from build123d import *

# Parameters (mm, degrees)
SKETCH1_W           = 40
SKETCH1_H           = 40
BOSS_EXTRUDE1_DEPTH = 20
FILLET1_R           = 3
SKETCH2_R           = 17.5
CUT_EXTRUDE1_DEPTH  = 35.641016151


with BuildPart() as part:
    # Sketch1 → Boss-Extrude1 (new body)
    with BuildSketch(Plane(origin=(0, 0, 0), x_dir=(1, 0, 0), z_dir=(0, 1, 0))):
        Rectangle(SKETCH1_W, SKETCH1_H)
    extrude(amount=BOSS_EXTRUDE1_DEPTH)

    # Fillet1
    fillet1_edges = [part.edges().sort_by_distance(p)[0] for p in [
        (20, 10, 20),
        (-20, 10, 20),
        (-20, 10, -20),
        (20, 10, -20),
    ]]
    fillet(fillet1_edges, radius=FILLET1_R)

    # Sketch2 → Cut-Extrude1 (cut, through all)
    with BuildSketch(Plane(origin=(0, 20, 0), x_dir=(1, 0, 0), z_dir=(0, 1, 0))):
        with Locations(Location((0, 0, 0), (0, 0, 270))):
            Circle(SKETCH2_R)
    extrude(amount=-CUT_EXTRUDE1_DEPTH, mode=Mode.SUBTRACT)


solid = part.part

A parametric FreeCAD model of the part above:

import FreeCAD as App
import Part
import Sketcher
Q = App.Units.Quantity


def edges_at(feature, points):
    """Names of the edges that pass closest to the given points."""
    edges = feature.Shape.Edges
    near = lambda p: min(range(len(edges)), key=lambda i: edges[i].distToShape(Part.Vertex(*p))[0])
    return sorted({f"Edge{near(p) + 1}" for p in points})


def add_polygon(sketch, points):
    """Adds a closed chain of lines whose ends are joined by coincident constraints."""
    first, n = sketch.GeometryCount, len(points)
    for a, b in zip(points, points[1:] + points[:1]):
        sketch.addGeometry(Part.LineSegment(App.Vector(*a, 0), App.Vector(*b, 0)), False)
    for i in range(n):
        sketch.addConstraint(Sketcher.Constraint("Coincident", first + i, 2, first + (i + 1) % n, 1))

doc = App.newDocument("Part")
body = doc.addObject("PartDesign::Body", "Body")

# Sketch on XZ plane
sketch1 = doc.addObject("Sketcher::SketchObject", "Sketch")
body.addObject(sketch1)
sketch1.AttachmentSupport = (doc.XZ_Plane, [""])
sketch1.MapMode = "FlatFace"
add_polygon(sketch1, [(-20, -20), (-20, 20), (20, 20), (20, -20)])  # lines 0-3
sketch1.addConstraint([
    Sketcher.Constraint("Vertical", 0),
    Sketcher.Constraint("Horizontal", 1),
    Sketcher.Constraint("Vertical", 2),
    Sketcher.Constraint("Horizontal", 3),
    Sketcher.Constraint("Symmetric", 0, 2, 2, 2, -1, 1),
    Sketcher.Constraint("Equal", 3, 0),
    Sketcher.Constraint("DistanceX", 1, 1, 1, 2, Q("40 mm")),
])
pad1 = doc.addObject("PartDesign::Pad", "Pad")
body.addObject(pad1)
pad1.Profile = sketch1
pad1.Length = 20
pad1.Reversed = True
doc.recompute()

fillet = doc.addObject("PartDesign::Fillet", "Fillet")
body.addObject(fillet)
fillet.Base = (pad1, edges_at(pad1, [
    (20, 10, 20),
    (-20, 10, 20),
    (-20, 10, -20),
    (20, 10, -20),
]))
fillet.Radius = 3

# Sketch on XZ plane
sketch2 = doc.addObject("Sketcher::SketchObject", "Sketch001")
body.addObject(sketch2)
sketch2.AttachmentSupport = (doc.XZ_Plane, [""])
sketch2.MapMode = "FlatFace"
sketch2.AttachmentOffset = App.Placement(App.Vector(0, 0, -20), App.Rotation())
sketch2.addGeometry(Part.Circle(App.Vector(0, 0, 0), App.Vector(0, 0, 1), 17.5), False)
sketch2.addConstraint([
    Sketcher.Constraint("Coincident", 0, 3, -1, 1),
    Sketcher.Constraint("Diameter", 0, Q("35 mm")),
])
pocket1 = doc.addObject("PartDesign::Pocket", "Pocket")
body.addObject(pocket1)
pocket1.Profile = sketch2
pocket1.Type = "ThroughAll"
pocket1.Reversed = True

doc.recompute()
